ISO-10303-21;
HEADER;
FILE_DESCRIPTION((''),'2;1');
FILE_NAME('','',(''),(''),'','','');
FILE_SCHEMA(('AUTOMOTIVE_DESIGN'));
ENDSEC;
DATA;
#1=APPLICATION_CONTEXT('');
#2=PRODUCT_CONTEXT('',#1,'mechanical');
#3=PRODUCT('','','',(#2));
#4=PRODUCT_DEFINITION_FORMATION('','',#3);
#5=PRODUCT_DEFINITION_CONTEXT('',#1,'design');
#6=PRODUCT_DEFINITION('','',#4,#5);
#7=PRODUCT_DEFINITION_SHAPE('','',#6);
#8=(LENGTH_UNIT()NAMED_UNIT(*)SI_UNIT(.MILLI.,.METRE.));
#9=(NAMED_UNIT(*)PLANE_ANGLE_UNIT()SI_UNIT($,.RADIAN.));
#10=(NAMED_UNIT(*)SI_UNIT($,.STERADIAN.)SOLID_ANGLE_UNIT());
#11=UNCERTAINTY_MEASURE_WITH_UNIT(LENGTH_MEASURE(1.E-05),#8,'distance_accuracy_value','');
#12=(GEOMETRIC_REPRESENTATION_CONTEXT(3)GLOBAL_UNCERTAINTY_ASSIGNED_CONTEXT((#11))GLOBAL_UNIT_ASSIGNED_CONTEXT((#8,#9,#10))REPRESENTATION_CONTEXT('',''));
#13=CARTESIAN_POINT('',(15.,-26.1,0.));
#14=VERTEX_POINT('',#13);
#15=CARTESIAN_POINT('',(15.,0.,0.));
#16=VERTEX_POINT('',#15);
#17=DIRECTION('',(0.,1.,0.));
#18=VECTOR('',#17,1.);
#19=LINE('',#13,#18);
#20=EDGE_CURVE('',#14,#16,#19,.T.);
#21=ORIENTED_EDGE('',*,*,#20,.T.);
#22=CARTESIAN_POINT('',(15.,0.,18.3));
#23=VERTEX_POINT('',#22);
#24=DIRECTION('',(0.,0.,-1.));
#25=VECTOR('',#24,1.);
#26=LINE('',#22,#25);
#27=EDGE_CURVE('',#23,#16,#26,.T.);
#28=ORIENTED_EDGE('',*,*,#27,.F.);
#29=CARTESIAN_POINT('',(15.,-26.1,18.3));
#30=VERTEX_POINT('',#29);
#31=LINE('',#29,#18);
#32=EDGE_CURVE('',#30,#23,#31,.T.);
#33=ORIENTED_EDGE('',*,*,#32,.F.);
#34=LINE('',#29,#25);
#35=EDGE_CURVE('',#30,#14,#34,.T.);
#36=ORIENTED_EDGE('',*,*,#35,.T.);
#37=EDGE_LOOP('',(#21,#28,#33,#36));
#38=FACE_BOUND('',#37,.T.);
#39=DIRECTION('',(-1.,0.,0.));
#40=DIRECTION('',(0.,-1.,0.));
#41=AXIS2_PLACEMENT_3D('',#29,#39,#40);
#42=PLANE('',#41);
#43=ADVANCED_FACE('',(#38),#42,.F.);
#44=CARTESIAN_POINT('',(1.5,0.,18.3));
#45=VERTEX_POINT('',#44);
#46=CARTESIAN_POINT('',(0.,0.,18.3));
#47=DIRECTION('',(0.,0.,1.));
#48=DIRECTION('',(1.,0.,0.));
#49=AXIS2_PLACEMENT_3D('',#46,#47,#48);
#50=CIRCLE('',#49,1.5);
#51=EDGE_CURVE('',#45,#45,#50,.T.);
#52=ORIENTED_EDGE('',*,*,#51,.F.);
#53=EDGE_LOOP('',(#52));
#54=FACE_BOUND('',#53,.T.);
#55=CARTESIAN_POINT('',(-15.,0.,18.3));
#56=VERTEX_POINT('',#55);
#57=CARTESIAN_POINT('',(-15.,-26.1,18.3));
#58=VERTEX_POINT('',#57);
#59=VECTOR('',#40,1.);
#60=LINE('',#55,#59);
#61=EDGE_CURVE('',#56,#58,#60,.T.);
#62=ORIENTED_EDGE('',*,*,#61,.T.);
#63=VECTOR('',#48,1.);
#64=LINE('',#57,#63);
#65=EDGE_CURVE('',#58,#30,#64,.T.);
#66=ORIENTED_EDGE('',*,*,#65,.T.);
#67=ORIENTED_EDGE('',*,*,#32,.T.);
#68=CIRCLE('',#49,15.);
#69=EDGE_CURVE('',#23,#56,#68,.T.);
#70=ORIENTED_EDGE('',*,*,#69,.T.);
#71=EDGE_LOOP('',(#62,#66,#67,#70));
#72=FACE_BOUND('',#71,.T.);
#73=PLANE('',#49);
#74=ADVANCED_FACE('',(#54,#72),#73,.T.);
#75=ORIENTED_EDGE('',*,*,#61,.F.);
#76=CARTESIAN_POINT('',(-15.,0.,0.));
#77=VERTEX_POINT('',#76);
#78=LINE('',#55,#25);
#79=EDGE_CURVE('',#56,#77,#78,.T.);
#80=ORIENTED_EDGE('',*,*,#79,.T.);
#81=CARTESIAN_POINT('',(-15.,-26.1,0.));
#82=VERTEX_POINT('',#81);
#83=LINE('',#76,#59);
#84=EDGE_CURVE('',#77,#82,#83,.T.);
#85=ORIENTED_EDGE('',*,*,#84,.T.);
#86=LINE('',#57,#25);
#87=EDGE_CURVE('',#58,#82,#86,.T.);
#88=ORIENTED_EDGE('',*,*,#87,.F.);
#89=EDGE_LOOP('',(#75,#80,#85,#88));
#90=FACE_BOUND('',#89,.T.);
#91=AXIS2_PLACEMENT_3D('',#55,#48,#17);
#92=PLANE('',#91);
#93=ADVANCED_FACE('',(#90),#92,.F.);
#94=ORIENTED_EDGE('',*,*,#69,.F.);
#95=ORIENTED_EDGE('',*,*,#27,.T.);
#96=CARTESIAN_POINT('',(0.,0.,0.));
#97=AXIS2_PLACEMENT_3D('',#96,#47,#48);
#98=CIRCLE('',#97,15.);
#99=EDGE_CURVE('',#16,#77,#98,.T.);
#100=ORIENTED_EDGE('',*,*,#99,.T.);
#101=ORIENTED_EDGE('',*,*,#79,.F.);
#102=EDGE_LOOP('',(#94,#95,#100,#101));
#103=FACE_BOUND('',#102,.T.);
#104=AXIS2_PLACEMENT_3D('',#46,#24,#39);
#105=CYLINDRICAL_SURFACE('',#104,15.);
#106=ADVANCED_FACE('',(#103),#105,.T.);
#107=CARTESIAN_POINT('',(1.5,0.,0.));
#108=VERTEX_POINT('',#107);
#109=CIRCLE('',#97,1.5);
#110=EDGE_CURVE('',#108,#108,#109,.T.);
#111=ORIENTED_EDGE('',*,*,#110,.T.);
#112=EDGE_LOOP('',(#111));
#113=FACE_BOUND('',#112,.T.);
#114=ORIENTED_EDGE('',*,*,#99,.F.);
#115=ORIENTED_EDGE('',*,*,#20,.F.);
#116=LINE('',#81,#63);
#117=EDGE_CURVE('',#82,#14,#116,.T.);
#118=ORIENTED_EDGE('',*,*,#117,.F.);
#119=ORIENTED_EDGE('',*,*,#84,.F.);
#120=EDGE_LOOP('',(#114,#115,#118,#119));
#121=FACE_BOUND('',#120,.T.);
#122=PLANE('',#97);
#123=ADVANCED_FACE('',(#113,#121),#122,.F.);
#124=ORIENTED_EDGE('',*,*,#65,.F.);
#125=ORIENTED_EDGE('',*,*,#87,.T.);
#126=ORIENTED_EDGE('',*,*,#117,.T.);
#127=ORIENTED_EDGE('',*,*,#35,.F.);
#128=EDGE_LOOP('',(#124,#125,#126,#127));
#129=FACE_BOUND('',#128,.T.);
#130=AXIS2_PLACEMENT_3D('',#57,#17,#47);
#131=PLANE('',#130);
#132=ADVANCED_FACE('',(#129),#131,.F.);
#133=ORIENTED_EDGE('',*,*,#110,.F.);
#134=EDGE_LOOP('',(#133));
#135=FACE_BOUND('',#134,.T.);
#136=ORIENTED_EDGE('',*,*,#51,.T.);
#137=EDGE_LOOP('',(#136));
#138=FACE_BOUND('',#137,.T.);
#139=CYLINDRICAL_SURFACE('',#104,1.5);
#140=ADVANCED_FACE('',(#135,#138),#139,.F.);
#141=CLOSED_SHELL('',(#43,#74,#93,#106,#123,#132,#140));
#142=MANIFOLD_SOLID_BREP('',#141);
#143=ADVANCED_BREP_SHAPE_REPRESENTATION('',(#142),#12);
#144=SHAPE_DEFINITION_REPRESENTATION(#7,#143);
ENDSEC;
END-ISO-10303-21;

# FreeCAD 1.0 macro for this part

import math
import FreeCAD as App
import Part
import Sketcher
from FreeCAD import Vector

doc = App.newDocument("Part")
body = doc.addObject("PartDesign::Body", "Body")

# Sketch on XY plane
sketch1 = body.newObject("Sketcher::SketchObject", "Sketch")
sketch1.AttachmentSupport = (doc.getObject("XY_Plane"), [""])
sketch1.MapMode = "FlatFace"
sketch1.addGeometry(Part.LineSegment(Vector(-15, 0, 0), Vector(-15, -26.1, 0)), False)
sketch1.addGeometry(Part.LineSegment(Vector(-15, -26.1, 0), Vector(15, -26.1, 0)), False)
sketch1.addGeometry(Part.LineSegment(Vector(15, -26.1, 0), Vector(15, 0, 0)), False)
sketch1.addGeometry(Part.ArcOfCircle(Part.Circle(Vector(0, 0, 0), Vector(0, 0, 1), 15), math.radians(0), math.radians(180)), False)
sketch1.addGeometry(Part.Circle(Vector(0, 0, 0), Vector(0, 0, 1), 1.5), False)
sketch1.addConstraint(Sketcher.Constraint("Coincident", 0, 2, 1, 1))
sketch1.addConstraint(Sketcher.Constraint("Coincident", 1, 2, 2, 1))
sketch1.addConstraint(Sketcher.Constraint("Tangent", 2, 2, 3, 1))
sketch1.addConstraint(Sketcher.Constraint("Tangent", 3, 2, 0, 1))
sketch1.addConstraint(Sketcher.Constraint("Vertical", 0))
sketch1.addConstraint(Sketcher.Constraint("Horizontal", 1))
sketch1.addConstraint(Sketcher.Constraint("Vertical", 2))
sketch1.addConstraint(Sketcher.Constraint("Coincident", 3, 3, -1, 1))
sketch1.addConstraint(Sketcher.Constraint("Coincident", 4, 3, -1, 1))
sketch1.addConstraint(Sketcher.Constraint("Diameter", 4, 3.0))
sketch1.addConstraint(Sketcher.Constraint("Radius", 3, 15.0))
sketch1.addConstraint(Sketcher.Constraint("DistanceY", 0, 2, 0, 1, 26.1))
pad1 = body.newObject("PartDesign::Pad", "Pad")
pad1.Profile = sketch1
pad1.Length = 18.3

doc.recompute()
